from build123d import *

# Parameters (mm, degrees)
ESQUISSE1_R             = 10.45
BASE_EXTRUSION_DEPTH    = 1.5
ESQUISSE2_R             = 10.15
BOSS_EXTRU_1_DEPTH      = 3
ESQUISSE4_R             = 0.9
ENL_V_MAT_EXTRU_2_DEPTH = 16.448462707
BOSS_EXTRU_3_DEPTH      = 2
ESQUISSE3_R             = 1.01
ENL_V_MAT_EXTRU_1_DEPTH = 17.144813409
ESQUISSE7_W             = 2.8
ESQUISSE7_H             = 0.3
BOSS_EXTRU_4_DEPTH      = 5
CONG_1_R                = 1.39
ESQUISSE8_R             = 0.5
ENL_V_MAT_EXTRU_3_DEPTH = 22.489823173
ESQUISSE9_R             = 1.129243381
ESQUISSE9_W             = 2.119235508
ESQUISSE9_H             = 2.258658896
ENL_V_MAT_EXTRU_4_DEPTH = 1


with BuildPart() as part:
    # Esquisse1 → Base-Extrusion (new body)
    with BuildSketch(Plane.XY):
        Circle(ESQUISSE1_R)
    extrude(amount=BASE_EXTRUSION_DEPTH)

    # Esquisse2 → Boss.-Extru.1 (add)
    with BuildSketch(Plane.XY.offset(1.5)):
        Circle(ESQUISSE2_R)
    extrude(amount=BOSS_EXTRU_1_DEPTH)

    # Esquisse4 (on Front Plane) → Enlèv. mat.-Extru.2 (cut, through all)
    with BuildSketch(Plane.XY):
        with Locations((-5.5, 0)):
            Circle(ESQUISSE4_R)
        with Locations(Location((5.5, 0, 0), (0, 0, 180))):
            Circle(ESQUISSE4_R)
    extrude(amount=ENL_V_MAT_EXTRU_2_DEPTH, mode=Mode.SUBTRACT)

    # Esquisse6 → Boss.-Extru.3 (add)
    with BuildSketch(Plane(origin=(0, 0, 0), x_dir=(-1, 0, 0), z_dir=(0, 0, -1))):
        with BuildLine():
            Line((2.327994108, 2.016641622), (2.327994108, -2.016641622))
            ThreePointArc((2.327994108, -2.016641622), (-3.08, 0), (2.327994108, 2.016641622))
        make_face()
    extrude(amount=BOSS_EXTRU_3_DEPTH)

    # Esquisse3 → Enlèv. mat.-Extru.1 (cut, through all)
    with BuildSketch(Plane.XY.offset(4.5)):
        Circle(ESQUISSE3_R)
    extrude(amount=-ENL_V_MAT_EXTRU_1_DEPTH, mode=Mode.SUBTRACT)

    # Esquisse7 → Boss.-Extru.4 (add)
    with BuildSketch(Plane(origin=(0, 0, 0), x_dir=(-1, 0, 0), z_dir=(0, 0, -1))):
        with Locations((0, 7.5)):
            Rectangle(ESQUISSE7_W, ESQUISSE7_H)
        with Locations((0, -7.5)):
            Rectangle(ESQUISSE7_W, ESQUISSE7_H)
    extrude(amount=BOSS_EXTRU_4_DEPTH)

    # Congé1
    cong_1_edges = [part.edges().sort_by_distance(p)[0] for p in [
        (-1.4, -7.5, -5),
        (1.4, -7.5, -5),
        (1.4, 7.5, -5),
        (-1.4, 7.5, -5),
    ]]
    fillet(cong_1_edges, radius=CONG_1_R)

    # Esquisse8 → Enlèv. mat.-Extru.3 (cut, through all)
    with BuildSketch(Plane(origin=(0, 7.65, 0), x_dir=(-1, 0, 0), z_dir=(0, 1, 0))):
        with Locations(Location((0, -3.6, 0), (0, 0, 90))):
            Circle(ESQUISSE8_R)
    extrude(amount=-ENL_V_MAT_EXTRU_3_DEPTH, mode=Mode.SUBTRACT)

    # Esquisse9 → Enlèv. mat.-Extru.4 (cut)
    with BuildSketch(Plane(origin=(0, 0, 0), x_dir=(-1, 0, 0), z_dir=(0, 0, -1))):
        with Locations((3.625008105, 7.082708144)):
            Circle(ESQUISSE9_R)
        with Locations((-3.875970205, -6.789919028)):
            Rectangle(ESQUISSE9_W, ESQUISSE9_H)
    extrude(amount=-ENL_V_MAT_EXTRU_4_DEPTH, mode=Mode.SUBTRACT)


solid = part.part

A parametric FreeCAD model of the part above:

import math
import FreeCAD as App
import Part
import Sketcher

V = App.Vector
Q = App.Units.Quantity


def edges_at(feature, points):
    """Names of the edges that pass closest to the given points."""
    edges = feature.Shape.Edges
    near = lambda p: min(range(len(edges)), key=lambda i: edges[i].distToShape(Part.Vertex(*p))[0])
    return sorted({f"Edge{near(p) + 1}" for p in points})


def add_polygon(sketch, points):
    """Adds a closed chain of lines whose ends are joined by coincident constraints."""
    first, n = sketch.GeometryCount, len(points)
    for a, b in zip(points, points[1:] + points[:1]):
        sketch.addGeometry(Part.LineSegment(App.Vector(*a, 0), App.Vector(*b, 0)), False)
    for i in range(n):
        sketch.addConstraint(Sketcher.Constraint("Coincident", first + i, 2, first + (i + 1) % n, 1))

doc = App.newDocument("Part")
body = doc.addObject("PartDesign::Body", "Body")

# Sketch on XY plane
sketch1 = doc.addObject("Sketcher::SketchObject", "Sketch")
body.addObject(sketch1)
sketch1.AttachmentSupport = (doc.XY_Plane, [""])
sketch1.MapMode = "FlatFace"
sketch1.addGeometry(Part.Circle(V(0, 0, 0), V(0, 0, 1), 10), False)
sketch1.addConstraint([
    Sketcher.Constraint("Coincident", 0, 3, -1, 1),
    Sketcher.Constraint("Diameter", 0, Q("20.9 mm")),
])
pad1 = doc.addObject("PartDesign::Pad", "Pad")
body.addObject(pad1)
pad1.Profile = sketch1
pad1.Length = 1.5

# Sketch on XY plane
sketch2 = doc.addObject("Sketcher::SketchObject", "Sketch001")
body.addObject(sketch2)
sketch2.AttachmentSupport = (doc.XY_Plane, [""])
sketch2.MapMode = "FlatFace"
sketch2.AttachmentOffset = App.Placement(V(0, 0, 1.5), App.Rotation())
sketch2.addGeometry(Part.Circle(V(0, 0, 0), V(0, 0, 1), 10), False)
sketch2.addConstraint([
    Sketcher.Constraint("Coincident", 0, 3, -1, 1),
    Sketcher.Constraint("Diameter", 0, Q("20.3 mm")),
])
pad2 = doc.addObject("PartDesign::Pad", "Pad001")
body.addObject(pad2)
pad2.Profile = sketch2
pad2.Length = 3

# Sketch on XY plane
sketch3 = doc.addObject("Sketcher::SketchObject", "Sketch002")
body.addObject(sketch3)
sketch3.AttachmentSupport = (doc.XY_Plane, [""])
sketch3.MapMode = "FlatFace"
sketch3.addGeometry([
    Part.Circle(V(-5.5, 0, 0), V(0, 0, 1), 0.9),
    Part.Circle(V(5.5, 0, 0), V(0, 0, 1), 0.9),
], False)
sketch3.addConstraint([
    Sketcher.Constraint("Equal", 0, 1),
    Sketcher.Constraint("Symmetric", 0, 3, 1, 3, -1, 1),
    Sketcher.Constraint("PointOnObject", 0, 3, -1),
    Sketcher.Constraint("Diameter", 0, Q("1.8 mm")),
    Sketcher.Constraint("DistanceX", 0, 3, 1, 3, Q("11 mm")),
])
pocket1 = doc.addObject("PartDesign::Pocket", "Pocket")
body.addObject(pocket1)
pocket1.Profile = sketch3
pocket1.Type = "ThroughAll"
pocket1.Reversed = True

# Sketch on XY plane
sketch4 = doc.addObject("Sketcher::SketchObject", "Sketch003")
body.addObject(sketch4)
sketch4.AttachmentSupport = (doc.XY_Plane, [""])
sketch4.MapMode = "FlatFace"
sketch4.addGeometry([
    Part.LineSegment(V(-2.3, -2, 0), V(-2.3, 2, 0)),
    Part.ArcOfCircle(Part.Circle(V(0, 0, 0), V(0, 0, 1), 3.1), math.radians(-139), math.radians(139)),
], False)
sketch4.addConstraint([
    Sketcher.Constraint("Coincident", 0, 1, 1, 1),
    Sketcher.Constraint("Coincident", 1, 2, 0, 2),
    Sketcher.Constraint("Vertical", 0),
    Sketcher.Constraint("Coincident", 1, 3, -1, 1),
    Sketcher.Constraint("Radius", 1, Q("3.08 mm")),
    Sketcher.Constraint("DistanceY", 0, 1, 0, 2, Q("4.033283 mm")),
])
pad3 = doc.addObject("PartDesign::Pad", "Pad002")
body.addObject(pad3)
pad3.Profile = sketch4
pad3.Length = 2
pad3.Reversed = True

# Sketch on XY plane
sketch5 = doc.addObject("Sketcher::SketchObject", "Sketch004")
body.addObject(sketch5)
sketch5.AttachmentSupport = (doc.XY_Plane, [""])
sketch5.MapMode = "FlatFace"
sketch5.AttachmentOffset = App.Placement(V(0, 0, 4.5), App.Rotation())
sketch5.addGeometry(Part.Circle(V(0, 0, 0), V(0, 0, 1), 1), False)
sketch5.addConstraint([
    Sketcher.Constraint("Coincident", 0, 3, -1, 1),
    Sketcher.Constraint("Diameter", 0, Q("2.02 mm")),
])
pocket2 = doc.addObject("PartDesign::Pocket", "Pocket001")
body.addObject(pocket2)
pocket2.Profile = sketch5
pocket2.Type = "ThroughAll"

# Sketch on XY plane
sketch6 = doc.addObject("Sketcher::SketchObject", "Sketch005")
body.addObject(sketch6)
sketch6.AttachmentSupport = (doc.XY_Plane, [""])
sketch6.MapMode = "FlatFace"
add_polygon(sketch6, [(1.4, 7.65), (1.4, 7.35), (-1.4, 7.35), (-1.4, 7.65)])  # lines 0-3
add_polygon(sketch6, [(1.4, -7.35), (1.4, -7.65), (-1.4, -7.65), (-1.4, -7.35)])  # lines 4-7
sketch6.addConstraint([
    Sketcher.Constraint("Vertical", 0),
    Sketcher.Constraint("Horizontal", 1),
    Sketcher.Constraint("Vertical", 2),
    Sketcher.Constraint("Horizontal", 3),
    Sketcher.Constraint("Vertical", 4),
    Sketcher.Constraint("Horizontal", 5),
    Sketcher.Constraint("Vertical", 6),
    Sketcher.Constraint("Horizontal", 7),
    Sketcher.Constraint("Symmetric", 2, 2, 4, 2, -1, 1),
    Sketcher.Constraint("Symmetric", 0, 2, 6, 2, -1, 1),
    Sketcher.Constraint("Vertical", 3, 2, 4, 2),
    Sketcher.Constraint("DistanceX", 1, 2, 1, 1, Q("2.8 mm")),
    Sketcher.Constraint("DistanceY", 0, 2, 0, 1, Q("0.3 mm")),
    Sketcher.Constraint("DistanceY", 4, 2, 0, 2, Q("15 mm")),
])
pad4 = doc.addObject("PartDesign::Pad", "Pad003")
body.addObject(pad4)
pad4.Profile = sketch6
pad4.Length = 5
pad4.Reversed = True
doc.recompute()

fillet = doc.addObject("PartDesign::Fillet", "Fillet")
body.addObject(fillet)
fillet.Base = (pad4, edges_at(pad4, [
    (-1.4, -7.5, -5),
    (1.4, -7.5, -5),
    (1.4, 7.5, -5),
    (-1.4, 7.5, -5),
]))
fillet.Radius = 1.39

# Sketch on XZ plane
sketch7 = doc.addObject("Sketcher::SketchObject", "Sketch006")
body.addObject(sketch7)
sketch7.AttachmentSupport = (doc.XZ_Plane, [""])
sketch7.MapMode = "FlatFace"
sketch7.AttachmentOffset = App.Placement(V(0, 0, -7.65), App.Rotation())
sketch7.addGeometry(Part.Circle(V(0, -3.6, 0), V(0, 0, 1), 0.5), False)
sketch7.addConstraint([
    Sketcher.Constraint("PointOnObject", 0, 3, -2),
    Sketcher.Constraint("Diameter", 0, Q("1 mm")),
    Sketcher.Constraint("DistanceY", 0, 3, -1, 1, Q("3.6 mm")),
])
pocket3 = doc.addObject("PartDesign::Pocket", "Pocket002")
body.addObject(pocket3)
pocket3.Profile = sketch7
pocket3.Type = "ThroughAll"
pocket3.Reversed = True

# Sketch on XY plane
sketch8 = doc.addObject("Sketcher::SketchObject", "Sketch007")
body.addObject(sketch8)
sketch8.AttachmentSupport = (doc.XY_Plane, [""])
sketch8.MapMode = "FlatFace"
sketch8.addGeometry(Part.Circle(V(-3.6, 7.1, 0), V(0, 0, 1), 1.1), False)  # 0
add_polygon(sketch8, [(4.9, -5.7), (4.9, -7.9), (2.8, -7.9), (2.8, -5.7)])  # lines 1-4
sketch8.addConstraint([
    Sketcher.Constraint("Vertical", 1),
    Sketcher.Constraint("Horizontal", 2),
    Sketcher.Constraint("Vertical", 3),
    Sketcher.Constraint("Horizontal", 4),
    Sketcher.Constraint("Diameter", 0, Q("2.258487 mm")),
    Sketcher.Constraint("DistanceY", 1, 2, 1, 1, Q("2.258659 mm")),
    Sketcher.Constraint("DistanceX", 2, 2, 2, 1, Q("2.119236 mm")),
    Sketcher.Constraint("DistanceX", 0, 3, -1, 1, Q("3.625008 mm")),
    Sketcher.Constraint("DistanceY", -1, 1, 0, 3, Q("7.082708 mm")),
    Sketcher.Constraint("DistanceY", 1, 2, -1, 1, Q("7.919248 mm")),
    Sketcher.Constraint("DistanceX", 0, 3, 2, 2, Q("6.441361 mm")),
])
pocket4 = doc.addObject("PartDesign::Pocket", "Pocket003")
body.addObject(pocket4)
pocket4.Profile = sketch8
pocket4.Length = 1
pocket4.Reversed = True

doc.recompute()
